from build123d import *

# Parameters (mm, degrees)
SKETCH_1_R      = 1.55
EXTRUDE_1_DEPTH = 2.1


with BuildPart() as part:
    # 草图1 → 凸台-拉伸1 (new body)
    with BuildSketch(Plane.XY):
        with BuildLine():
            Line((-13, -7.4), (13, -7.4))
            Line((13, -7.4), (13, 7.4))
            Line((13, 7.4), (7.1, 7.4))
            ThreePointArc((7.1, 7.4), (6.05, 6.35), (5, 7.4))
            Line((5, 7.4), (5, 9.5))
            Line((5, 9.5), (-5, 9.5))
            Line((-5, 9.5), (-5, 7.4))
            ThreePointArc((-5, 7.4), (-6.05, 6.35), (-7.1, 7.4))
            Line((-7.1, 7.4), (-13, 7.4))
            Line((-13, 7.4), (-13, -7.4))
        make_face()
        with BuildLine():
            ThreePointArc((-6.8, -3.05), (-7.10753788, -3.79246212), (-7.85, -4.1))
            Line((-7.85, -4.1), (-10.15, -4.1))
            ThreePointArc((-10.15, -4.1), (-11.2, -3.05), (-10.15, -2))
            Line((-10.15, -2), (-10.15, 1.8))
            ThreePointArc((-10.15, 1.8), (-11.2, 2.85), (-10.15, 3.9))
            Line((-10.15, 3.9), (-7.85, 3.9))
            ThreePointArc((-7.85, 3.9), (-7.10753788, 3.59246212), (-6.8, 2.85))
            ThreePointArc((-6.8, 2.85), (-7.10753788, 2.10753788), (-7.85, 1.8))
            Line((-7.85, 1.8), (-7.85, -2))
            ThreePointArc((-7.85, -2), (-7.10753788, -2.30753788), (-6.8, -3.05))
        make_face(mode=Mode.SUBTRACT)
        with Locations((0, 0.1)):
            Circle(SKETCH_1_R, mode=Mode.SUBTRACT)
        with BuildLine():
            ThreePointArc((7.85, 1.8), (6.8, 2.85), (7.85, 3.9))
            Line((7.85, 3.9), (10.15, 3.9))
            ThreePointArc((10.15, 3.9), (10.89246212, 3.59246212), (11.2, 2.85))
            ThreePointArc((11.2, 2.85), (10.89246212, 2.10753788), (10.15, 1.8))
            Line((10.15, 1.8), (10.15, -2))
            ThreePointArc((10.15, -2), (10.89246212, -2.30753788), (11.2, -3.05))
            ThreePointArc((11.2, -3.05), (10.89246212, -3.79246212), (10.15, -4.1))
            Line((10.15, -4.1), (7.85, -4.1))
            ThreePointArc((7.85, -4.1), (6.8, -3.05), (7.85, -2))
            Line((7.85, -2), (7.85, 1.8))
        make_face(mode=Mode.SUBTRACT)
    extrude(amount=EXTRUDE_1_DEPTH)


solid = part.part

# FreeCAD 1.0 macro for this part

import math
import FreeCAD as App
import Part
import Sketcher

V = App.Vector
Q = App.Units.Quantity

doc = App.newDocument("Part")
params = doc.addObject("Spreadsheet::Sheet", "Params")
for row, (alias, value) in enumerate([
    ("sketch1_diameter", "3.1 mm"),
    ("sketch1_width", "26 mm"),
    ("sketch1_width2", "10 mm"),
    ("sketch1_radius", "1.05 mm"),
    ("sketch1_width3", "2.3 mm"),
    ("pad1_length", "2.1 mm"),
], start=1):
    params.set(f"A{row}", alias)
    params.set(f"B{row}", "=" + value)
    params.setAlias(f"B{row}", alias)

body = doc.addObject("PartDesign::Body", "Body")

sketch1 = body.newObject("Sketcher::SketchObject", "Sketch")
sketch1.AttachmentSupport = (doc.getObject("XY_Plane"), [""])
sketch1.MapMode = "FlatFace"
sketch1.addGeometry([
    Part.LineSegment(V(-13, -7.4, 0), V(13, -7.4, 0)),
    Part.LineSegment(V(13, -7.4, 0), V(13, 7.4, 0)),
    Part.LineSegment(V(13, 7.4, 0), V(7.1, 7.4, 0)),
    Part.ArcOfCircle(Part.Circle(V(6.05, 7.4, 0), V(0, 0, 1), 1.05), math.radians(180), math.radians(360)),
    Part.LineSegment(V(5, 7.4, 0), V(5, 9.5, 0)),
    Part.LineSegment(V(5, 9.5, 0), V(-5, 9.5, 0)),
    Part.LineSegment(V(-5, 9.5, 0), V(-5, 7.4, 0)),
    Part.ArcOfCircle(Part.Circle(V(-6.05, 7.4, 0), V(0, 0, 1), 1.05), math.radians(180), math.radians(360)),
    Part.LineSegment(V(-7.1, 7.4, 0), V(-13, 7.4, 0)),
    Part.LineSegment(V(-13, 7.4, 0), V(-13, -7.4, 0)),
    Part.ArcOfCircle(Part.Circle(V(-7.85, -3.05, 0), V(0, 0, 1), 1.05), math.radians(0), math.radians(90)),
    Part.ArcOfCircle(Part.Circle(V(-7.85, -3.05, 0), V(0, 0, 1), 1.05), math.radians(-90), math.radians(0)),
    Part.LineSegment(V(-7.85, -4.1, 0), V(-10.15, -4.1, 0)),
    Part.ArcOfCircle(Part.Circle(V(-10.15, -3.05, 0), V(0, 0, 1), 1.05), math.radians(90), math.radians(270)),
    Part.LineSegment(V(-10.15, -2, 0), V(-10.15, 1.8, 0)),
    Part.ArcOfCircle(Part.Circle(V(-10.15, 2.85, 0), V(0, 0, 1), 1.05), math.radians(90), math.radians(270)),
    Part.LineSegment(V(-10.15, 3.9, 0), V(-7.85, 3.9, 0)),
    Part.ArcOfCircle(Part.Circle(V(-7.85, 2.85, 0), V(0, 0, 1), 1.05), math.radians(0), math.radians(90)),
    Part.ArcOfCircle(Part.Circle(V(-7.85, 2.85, 0), V(0, 0, 1), 1.05), math.radians(-90), math.radians(0)),
    Part.LineSegment(V(-7.85, 1.8, 0), V(-7.85, -2, 0)),
    Part.Circle(V(0, 0.1, 0), V(0, 0, 1), 1.55),
    Part.LineSegment(V(7.85, -2, 0), V(7.85, 1.8, 0)),
    Part.ArcOfCircle(Part.Circle(V(7.85, 2.85, 0), V(0, 0, 1), 1.05), math.radians(90), math.radians(270)),
    Part.LineSegment(V(7.85, 3.9, 0), V(10.15, 3.9, 0)),
    Part.ArcOfCircle(Part.Circle(V(10.15, 2.85, 0), V(0, 0, 1), 1.05), math.radians(0), math.radians(90)),
    Part.ArcOfCircle(Part.Circle(V(10.15, 2.85, 0), V(0, 0, 1), 1.05), math.radians(-90), math.radians(0)),
    Part.LineSegment(V(10.15, 1.8, 0), V(10.15, -2, 0)),
    Part.ArcOfCircle(Part.Circle(V(10.15, -3.05, 0), V(0, 0, 1), 1.05), math.radians(0), math.radians(90)),
    Part.ArcOfCircle(Part.Circle(V(10.15, -3.05, 0), V(0, 0, 1), 1.05), math.radians(-90), math.radians(0)),
    Part.LineSegment(V(10.15, -4.1, 0), V(7.85, -4.1, 0)),
    Part.ArcOfCircle(Part.Circle(V(7.85, -3.05, 0), V(0, 0, 1), 1.05), math.radians(90), math.radians(270)),
], False)
sketch1.addConstraint([
    Sketcher.Constraint("Coincident", 0, 2, 1, 1),
    Sketcher.Constraint("Coincident", 1, 2, 2, 1),
    Sketcher.Constraint("Coincident", 2, 2, 3, 2),
    Sketcher.Constraint("Tangent", 3, 1, 4, 1),
    Sketcher.Constraint("Coincident", 4, 2, 5, 1),
    Sketcher.Constraint("Coincident", 5, 2, 6, 1),
    Sketcher.Constraint("Tangent", 6, 2, 7, 2),
    Sketcher.Constraint("Coincident", 7, 1, 8, 1),
    Sketcher.Constraint("Coincident", 8, 2, 9, 1),
    Sketcher.Constraint("Coincident", 9, 2, 0, 1),
    Sketcher.Constraint("Tangent", 10, 1, 11, 2),
    Sketcher.Constraint("Tangent", 11, 1, 12, 1),
    Sketcher.Constraint("Tangent", 12, 2, 13, 2),
    Sketcher.Constraint("Coincident", 13, 1, 14, 1),
    Sketcher.Constraint("Coincident", 14, 2, 15, 2),
    Sketcher.Constraint("Tangent", 15, 1, 16, 1),
    Sketcher.Constraint("Tangent", 16, 2, 17, 2),
    Sketcher.Constraint("Tangent", 17, 1, 18, 2),
    Sketcher.Constraint("Coincident", 18, 1, 19, 1),
    Sketcher.Constraint("Coincident", 19, 2, 10, 2),
    Sketcher.Constraint("Coincident", 21, 2, 22, 2),
    Sketcher.Constraint("Tangent", 22, 1, 23, 1),
    Sketcher.Constraint("Tangent", 23, 2, 24, 2),
    Sketcher.Constraint("Tangent", 24, 1, 25, 2),
    Sketcher.Constraint("Coincident", 25, 1, 26, 1),
    Sketcher.Constraint("Coincident", 26, 2, 27, 2),
    Sketcher.Constraint("Tangent", 27, 1, 28, 2),
    Sketcher.Constraint("Tangent", 28, 1, 29, 1),
    Sketcher.Constraint("Tangent", 29, 2, 30, 2),
    Sketcher.Constraint("Coincident", 30, 1, 21, 1),
    Sketcher.Constraint("Horizontal", 0),
    Sketcher.Constraint("Vertical", 1),
    Sketcher.Constraint("Horizontal", 2),
    Sketcher.Constraint("Vertical", 4),
    Sketcher.Constraint("Horizontal", 5),
    Sketcher.Constraint("Vertical", 6),
    Sketcher.Constraint("Horizontal", 8),
    Sketcher.Constraint("Vertical", 9),
    Sketcher.Constraint("Horizontal", 12),
    Sketcher.Constraint("Vertical", 14),
    Sketcher.Constraint("Horizontal", 16),
    Sketcher.Constraint("Vertical", 19),
    Sketcher.Constraint("Vertical", 21),
    Sketcher.Constraint("Horizontal", 23),
    Sketcher.Constraint("Vertical", 26),
    Sketcher.Constraint("Horizontal", 29),
    Sketcher.Constraint("Equal", 3, 7),
    Sketcher.Constraint("Equal", 7, 10),
    Sketcher.Constraint("Equal", 10, 11),
    Sketcher.Constraint("Equal", 11, 13),
    Sketcher.Constraint("Equal", 13, 15),
    Sketcher.Constraint("Equal", 15, 17),
    Sketcher.Constraint("Equal", 17, 18),
    Sketcher.Constraint("Equal", 18, 22),
    Sketcher.Constraint("Equal", 22, 24),
    Sketcher.Constraint("Equal", 24, 25),
    Sketcher.Constraint("Equal", 25, 27),
    Sketcher.Constraint("Equal", 27, 28),
    Sketcher.Constraint("Equal", 28, 30),
    Sketcher.Constraint("Symmetric", 0, 2, 8, 2, -1, 1),
    Sketcher.Constraint("Symmetric", 3, 3, 7, 3, -2),
    Sketcher.Constraint("Symmetric", 17, 3, 22, 3, -2),
    Sketcher.Constraint("Symmetric", 13, 3, 27, 3, -2),
    Sketcher.Constraint("PointOnObject", 20, 3, -2),
    Sketcher.Constraint("Horizontal", 7, 3, 1, 2),
    Sketcher.Constraint("Horizontal", 6, 2, 7, 1),
    Sketcher.Constraint("Horizontal", 30, 3, 10, 1),
    Sketcher.Constraint("Horizontal", 25, 3, 17, 1),
    Sketcher.Constraint("Horizontal", 17, 1, 24, 1),
    Sketcher.Constraint("Horizontal", 10, 1, 27, 1),
    Sketcher.Constraint("Vertical", 13, 3, 15, 3),
    Sketcher.Constraint("Vertical", 11, 3, 17, 3),
    Sketcher.Constraint("Vertical", 25, 3, 27, 3),
    Sketcher.Constraint("Vertical", 22, 3, 30, 3),
    Sketcher.Constraint("Vertical", 12, 2, 13, 1),
    Sketcher.Constraint("Vertical", 16, 2, 18, 1),
    Sketcher.Constraint("Vertical", 30, 3, 21, 2),
    Sketcher.Constraint("Vertical", 23, 2, 25, 1),
    Sketcher.Constraint("Diameter", 20, Q("3.1 mm")),
    Sketcher.Constraint("DistanceX", 0, 1, 0, 2, Q("26 mm")),
    Sketcher.Constraint("DistanceX", 5, 2, 5, 1, Q("10 mm")),
    Sketcher.Constraint("Radius", 3, Q("1.05 mm")),
    Sketcher.Constraint("DistanceX", 12, 2, 12, 1, Q("2.3 mm")),
    Sketcher.Constraint("DistanceY", 1, 1, 1, 2, Q("14.8 mm")),
    Sketcher.Constraint("DistanceY", 4, 1, 4, 2, Q("2.1 mm")),
    Sketcher.Constraint("DistanceY", 14, 1, 14, 2, Q("3.8 mm")),
    Sketcher.Constraint("DistanceY", 13, 1, -1, 1, Q("2 mm")),
    Sketcher.Constraint("DistanceX", 17, 3, 24, 3, Q("18 mm")),
    Sketcher.Constraint("DistanceY", -1, 1, 20, 3, Q("0.1 mm")),
])
sketch1.setExpression("Constraints[78]", "Params.sketch1_diameter")
sketch1.setExpression("Constraints[79]", "Params.sketch1_width")
sketch1.setExpression("Constraints[80]", "Params.sketch1_width2")
sketch1.setExpression("Constraints[81]", "Params.sketch1_radius")
sketch1.setExpression("Constraints[82]", "Params.sketch1_width3")
pad1 = body.newObject("PartDesign::Pad", "Pad")
pad1.Profile = sketch1
pad1.setExpression("Length", "Params.pad1_length")

doc.recompute()
